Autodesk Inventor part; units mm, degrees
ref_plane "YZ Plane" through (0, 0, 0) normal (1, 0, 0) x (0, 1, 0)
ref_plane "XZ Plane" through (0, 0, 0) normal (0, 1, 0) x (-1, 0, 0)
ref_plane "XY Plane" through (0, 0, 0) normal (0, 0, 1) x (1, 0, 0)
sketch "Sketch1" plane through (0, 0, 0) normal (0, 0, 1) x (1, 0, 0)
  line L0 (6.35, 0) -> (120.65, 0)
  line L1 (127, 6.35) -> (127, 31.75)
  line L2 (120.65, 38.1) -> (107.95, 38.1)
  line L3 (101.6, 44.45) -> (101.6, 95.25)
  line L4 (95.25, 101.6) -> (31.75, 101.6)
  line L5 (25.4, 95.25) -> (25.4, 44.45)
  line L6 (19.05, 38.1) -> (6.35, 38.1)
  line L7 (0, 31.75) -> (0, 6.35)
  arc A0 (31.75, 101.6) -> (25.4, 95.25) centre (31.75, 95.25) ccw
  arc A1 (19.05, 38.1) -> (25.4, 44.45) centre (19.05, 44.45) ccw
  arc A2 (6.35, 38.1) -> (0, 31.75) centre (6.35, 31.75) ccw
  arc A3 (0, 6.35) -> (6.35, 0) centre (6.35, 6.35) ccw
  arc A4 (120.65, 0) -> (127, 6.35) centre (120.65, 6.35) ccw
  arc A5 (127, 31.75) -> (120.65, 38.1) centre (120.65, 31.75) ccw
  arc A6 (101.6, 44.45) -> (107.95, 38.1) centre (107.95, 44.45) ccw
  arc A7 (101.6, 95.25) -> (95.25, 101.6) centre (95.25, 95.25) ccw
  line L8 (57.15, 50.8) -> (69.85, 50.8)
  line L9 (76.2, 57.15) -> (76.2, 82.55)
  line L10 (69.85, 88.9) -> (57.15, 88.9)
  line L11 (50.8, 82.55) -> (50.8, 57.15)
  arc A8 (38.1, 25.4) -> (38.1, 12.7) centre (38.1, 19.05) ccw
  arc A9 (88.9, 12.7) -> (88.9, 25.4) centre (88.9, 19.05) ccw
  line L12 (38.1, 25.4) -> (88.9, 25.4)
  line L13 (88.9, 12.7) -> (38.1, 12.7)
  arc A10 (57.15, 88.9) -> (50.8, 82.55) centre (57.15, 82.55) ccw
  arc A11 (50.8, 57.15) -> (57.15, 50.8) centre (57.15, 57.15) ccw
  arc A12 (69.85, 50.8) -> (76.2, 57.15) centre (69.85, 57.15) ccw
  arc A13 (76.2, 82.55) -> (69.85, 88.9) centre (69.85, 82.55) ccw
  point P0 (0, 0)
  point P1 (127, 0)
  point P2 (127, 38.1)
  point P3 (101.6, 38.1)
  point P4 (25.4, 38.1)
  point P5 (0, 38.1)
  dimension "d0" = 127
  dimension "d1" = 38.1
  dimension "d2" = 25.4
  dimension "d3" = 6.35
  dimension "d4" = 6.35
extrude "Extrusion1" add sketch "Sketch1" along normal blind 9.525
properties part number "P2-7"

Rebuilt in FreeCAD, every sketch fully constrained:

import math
import FreeCAD as App
import Part
import Sketcher

V = App.Vector
Q = App.Units.Quantity

doc = App.newDocument("Part")
body = doc.addObject("PartDesign::Body", "Body")

# Sketch on XY plane
sketch1 = doc.addObject("Sketcher::SketchObject", "Sketch")
body.addObject(sketch1)
sketch1.AttachmentSupport = (doc.XY_Plane, [""])
sketch1.MapMode = "FlatFace"
sketch1.addGeometry([
    Part.ArcOfCircle(Part.Circle(V(6, 6, 0), V(0, 0, 1), 6), math.radians(180), math.radians(270)),  # 0
    Part.LineSegment(V(6, 0, 0), V(121, 0, 0)),  # 1
    Part.ArcOfCircle(Part.Circle(V(121, 6, 0), V(0, 0, 1), 6), math.radians(-90), math.radians(0)),  # 2
    Part.LineSegment(V(127, 6, 0), V(127, 32, 0)),  # 3
    Part.ArcOfCircle(Part.Circle(V(121, 32, 0), V(0, 0, 1), 6), math.radians(0), math.radians(90)),  # 4
    Part.LineSegment(V(121, 38, 0), V(108, 38, 0)),  # 5
    Part.ArcOfCircle(Part.Circle(V(108, 44, 0), V(0, 0, 1), 6), math.radians(180), math.radians(270)),  # 6
    Part.LineSegment(V(102, 44, 0), V(102, 95, 0)),  # 7
    Part.ArcOfCircle(Part.Circle(V(95, 95, 0), V(0, 0, 1), 6), math.radians(0), math.radians(90)),  # 8
    Part.LineSegment(V(95, 102, 0), V(32, 102, 0)),  # 9
    Part.ArcOfCircle(Part.Circle(V(32, 95, 0), V(0, 0, 1), 6), math.radians(90), math.radians(180)),  # 10
    Part.LineSegment(V(25, 95, 0), V(25, 44, 0)),  # 11
    Part.ArcOfCircle(Part.Circle(V(19, 44, 0), V(0, 0, 1), 6), math.radians(-90), math.radians(0)),  # 12
    Part.LineSegment(V(19, 38, 0), V(6, 38, 0)),  # 13
    Part.ArcOfCircle(Part.Circle(V(6, 32, 0), V(0, 0, 1), 6), math.radians(90), math.radians(180)),  # 14
    Part.LineSegment(V(0, 32, 0), V(0, 6, 0)),  # 15
    Part.ArcOfCircle(Part.Circle(V(38, 19, 0), V(0, 0, 1), 6), math.radians(90), math.radians(270)),  # 16
    Part.LineSegment(V(38, 25, 0), V(89, 25, 0)),  # 17
    Part.ArcOfCircle(Part.Circle(V(89, 19, 0), V(0, 0, 1), 6), math.radians(-90), math.radians(90)),  # 18
    Part.LineSegment(V(89, 13, 0), V(38, 13, 0)),  # 19
    Part.LineSegment(V(70, 51, 0), V(57, 51, 0)),  # 20
    Part.ArcOfCircle(Part.Circle(V(57, 57, 0), V(0, 0, 1), 6), math.radians(180), math.radians(270)),  # 21
    Part.LineSegment(V(51, 57, 0), V(51, 83, 0)),  # 22
    Part.ArcOfCircle(Part.Circle(V(57, 83, 0), V(0, 0, 1), 6), math.radians(90), math.radians(180)),  # 23
    Part.LineSegment(V(57, 89, 0), V(70, 89, 0)),  # 24
    Part.ArcOfCircle(Part.Circle(V(70, 83, 0), V(0, 0, 1), 6), math.radians(0), math.radians(90)),  # 25
    Part.LineSegment(V(76, 83, 0), V(76, 57, 0)),  # 26
    Part.ArcOfCircle(Part.Circle(V(70, 57, 0), V(0, 0, 1), 6), math.radians(-90), math.radians(0)),  # 27
], False)
sketch1.addConstraint([
    Sketcher.Constraint("Tangent", 0, 2, 1, 1),
    Sketcher.Constraint("Tangent", 1, 2, 2, 1),
    Sketcher.Constraint("Tangent", 2, 2, 3, 1),
    Sketcher.Constraint("Tangent", 3, 2, 4, 1),
    Sketcher.Constraint("Tangent", 4, 2, 5, 1),
    Sketcher.Constraint("Tangent", 5, 2, 6, 2),
    Sketcher.Constraint("Tangent", 6, 1, 7, 1),
    Sketcher.Constraint("Tangent", 7, 2, 8, 1),
    Sketcher.Constraint("Tangent", 8, 2, 9, 1),
    Sketcher.Constraint("Tangent", 9, 2, 10, 1),
    Sketcher.Constraint("Tangent", 10, 2, 11, 1),
    Sketcher.Constraint("Tangent", 11, 2, 12, 2),
    Sketcher.Constraint("Tangent", 12, 1, 13, 1),
    Sketcher.Constraint("Tangent", 13, 2, 14, 1),
    Sketcher.Constraint("Tangent", 14, 2, 15, 1),
    Sketcher.Constraint("Tangent", 15, 2, 0, 1),
    Sketcher.Constraint("Tangent", 16, 1, 17, 1),
    Sketcher.Constraint("Tangent", 17, 2, 18, 2),
    Sketcher.Constraint("Tangent", 18, 1, 19, 1),
    Sketcher.Constraint("Tangent", 19, 2, 16, 2),
    Sketcher.Constraint("Tangent", 20, 2, 21, 2),
    Sketcher.Constraint("Tangent", 21, 1, 22, 1),
    Sketcher.Constraint("Tangent", 22, 2, 23, 2),
    Sketcher.Constraint("Tangent", 23, 1, 24, 1),
    Sketcher.Constraint("Tangent", 24, 2, 25, 2),
    Sketcher.Constraint("Tangent", 25, 1, 26, 1),
    Sketcher.Constraint("Tangent", 26, 2, 27, 2),
    Sketcher.Constraint("Tangent", 27, 1, 20, 1),
    Sketcher.Constraint("Horizontal", 1),
    Sketcher.Constraint("Vertical", 3),
    Sketcher.Constraint("Horizontal", 5),
    Sketcher.Constraint("Vertical", 7),
    Sketcher.Constraint("Horizontal", 9),
    Sketcher.Constraint("Vertical", 11),
    Sketcher.Constraint("Horizontal", 13),
    Sketcher.Constraint("Vertical", 15),
    Sketcher.Constraint("Horizontal", 17),
    Sketcher.Constraint("Horizontal", 19),
    Sketcher.Constraint("Horizontal", 20),
    Sketcher.Constraint("Vertical", 22),
    Sketcher.Constraint("Horizontal", 24),
    Sketcher.Constraint("Vertical", 26),
    Sketcher.Constraint("Equal", 0, 2),
    Sketcher.Constraint("Equal", 2, 4),
    Sketcher.Constraint("Equal", 4, 6),
    Sketcher.Constraint("Equal", 6, 8),
    Sketcher.Constraint("Equal", 8, 10),
    Sketcher.Constraint("Equal", 10, 12),
    Sketcher.Constraint("Equal", 12, 14),
    Sketcher.Constraint("Equal", 14, 16),
    Sketcher.Constraint("Equal", 18, 21),
    Sketcher.Constraint("Equal", 21, 23),
    Sketcher.Constraint("Equal", 23, 25),
    Sketcher.Constraint("Equal", 25, 27),
    Sketcher.Constraint("PointOnObject", 0, 2, -1),
    Sketcher.Constraint("PointOnObject", 14, 2, -2),
    Sketcher.Constraint("Horizontal", 6, 3, 12, 3),
    Sketcher.Constraint("Equal", 5, 13),
    Sketcher.Constraint("Equal", 13, 20),
    Sketcher.Constraint("Equal", 19, 7),
    Sketcher.Constraint("Equal", 15, 22),
    Sketcher.Constraint("DistanceY", 3, 1, 3, 2, Q("1 in")),
    Sketcher.Constraint("Radius", 0, Q("0.25 in")),
    Sketcher.Constraint("DistanceX", -1, 1, 2, 2, Q("5 in")),
    Sketcher.Constraint("DistanceX", -1, 1, 10, 2, Q("1 in")),
    Sketcher.Constraint("DistanceY", -1, 1, 16, 1, Q("1 in")),
    Sketcher.Constraint("DistanceX", 10, 3, 21, 3, Q("1 in")),
    Sketcher.Constraint("DistanceY", 16, 1, 20, 2, Q("1 in")),
    Sketcher.Constraint("DistanceX", -1, 1, 16, 3, Q("1.5 in")),
    Sketcher.Constraint("DistanceY", 21, 3, 10, 3, Q("1.5 in")),
])
pad1 = doc.addObject("PartDesign::Pad", "Pad")
body.addObject(pad1)
pad1.Profile = sketch1
pad1.Length = Q("0.375 in")

doc.recompute()
